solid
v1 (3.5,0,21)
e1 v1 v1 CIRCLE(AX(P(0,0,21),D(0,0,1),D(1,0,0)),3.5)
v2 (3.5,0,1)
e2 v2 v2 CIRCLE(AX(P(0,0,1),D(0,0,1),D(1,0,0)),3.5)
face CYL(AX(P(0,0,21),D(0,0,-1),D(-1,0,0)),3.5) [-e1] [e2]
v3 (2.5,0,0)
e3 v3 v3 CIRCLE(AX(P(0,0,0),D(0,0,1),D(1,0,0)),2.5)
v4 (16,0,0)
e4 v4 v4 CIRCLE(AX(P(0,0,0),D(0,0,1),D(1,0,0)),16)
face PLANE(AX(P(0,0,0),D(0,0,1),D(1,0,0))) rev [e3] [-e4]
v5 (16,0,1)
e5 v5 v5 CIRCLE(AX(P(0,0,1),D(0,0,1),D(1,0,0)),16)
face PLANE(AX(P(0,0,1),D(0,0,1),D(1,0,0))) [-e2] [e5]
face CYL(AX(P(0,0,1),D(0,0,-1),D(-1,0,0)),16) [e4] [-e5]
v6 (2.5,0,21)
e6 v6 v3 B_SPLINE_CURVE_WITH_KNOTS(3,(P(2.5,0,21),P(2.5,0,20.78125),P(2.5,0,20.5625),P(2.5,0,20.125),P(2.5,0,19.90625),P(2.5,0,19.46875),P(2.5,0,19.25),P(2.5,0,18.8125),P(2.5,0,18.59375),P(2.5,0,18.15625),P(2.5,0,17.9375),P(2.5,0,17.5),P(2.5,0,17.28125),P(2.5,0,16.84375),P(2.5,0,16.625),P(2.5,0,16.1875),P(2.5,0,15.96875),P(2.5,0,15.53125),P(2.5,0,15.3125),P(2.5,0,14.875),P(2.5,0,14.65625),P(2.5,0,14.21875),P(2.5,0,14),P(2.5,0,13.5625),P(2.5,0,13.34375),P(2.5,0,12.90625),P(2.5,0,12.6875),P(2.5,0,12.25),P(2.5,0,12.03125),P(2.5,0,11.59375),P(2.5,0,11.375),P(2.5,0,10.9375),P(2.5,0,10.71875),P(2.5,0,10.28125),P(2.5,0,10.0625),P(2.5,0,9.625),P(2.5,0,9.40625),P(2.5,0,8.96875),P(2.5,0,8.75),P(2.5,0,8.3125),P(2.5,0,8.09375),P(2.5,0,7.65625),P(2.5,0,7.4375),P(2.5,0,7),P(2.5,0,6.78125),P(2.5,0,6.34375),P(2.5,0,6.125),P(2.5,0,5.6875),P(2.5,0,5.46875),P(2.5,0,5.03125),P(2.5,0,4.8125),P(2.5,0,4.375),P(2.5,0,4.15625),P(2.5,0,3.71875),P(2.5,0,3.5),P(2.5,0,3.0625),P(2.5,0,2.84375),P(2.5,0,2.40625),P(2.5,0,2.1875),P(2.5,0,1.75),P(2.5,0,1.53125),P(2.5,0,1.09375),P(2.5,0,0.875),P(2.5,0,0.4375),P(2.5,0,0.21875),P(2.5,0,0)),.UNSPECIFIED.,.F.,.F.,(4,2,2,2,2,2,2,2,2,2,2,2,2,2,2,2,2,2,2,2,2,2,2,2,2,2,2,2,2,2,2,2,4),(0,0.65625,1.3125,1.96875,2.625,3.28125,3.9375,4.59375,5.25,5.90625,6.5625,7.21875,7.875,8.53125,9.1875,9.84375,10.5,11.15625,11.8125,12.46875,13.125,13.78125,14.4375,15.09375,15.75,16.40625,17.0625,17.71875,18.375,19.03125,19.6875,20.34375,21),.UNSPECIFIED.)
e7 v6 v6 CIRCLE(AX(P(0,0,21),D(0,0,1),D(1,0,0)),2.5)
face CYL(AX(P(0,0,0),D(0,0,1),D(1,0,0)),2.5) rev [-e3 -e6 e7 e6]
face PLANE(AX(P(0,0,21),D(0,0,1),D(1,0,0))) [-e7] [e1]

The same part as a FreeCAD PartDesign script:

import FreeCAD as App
import Part
import Sketcher

V = App.Vector
Q = App.Units.Quantity

doc = App.newDocument("Part")
body = doc.addObject("PartDesign::Body", "Body")

# Sketch on XY plane
sketch1 = body.newObject("Sketcher::SketchObject", "Sketch")
sketch1.AttachmentSupport = (doc.getObject("XY_Plane"), [""])
sketch1.MapMode = "FlatFace"
sketch1.addGeometry(Part.Circle(V(0, 0, 0), V(0, 0, 1), 16), False)
sketch1.addConstraint([
    Sketcher.Constraint("Coincident", 0, 3, -1, 1),
    Sketcher.Constraint("Diameter", 0, Q("32 mm")),
])
pad1 = body.newObject("PartDesign::Pad", "Pad")
pad1.Profile = sketch1
pad1.Length = 1

# Sketch on XY plane
sketch2 = body.newObject("Sketcher::SketchObject", "Sketch001")
sketch2.AttachmentSupport = (doc.getObject("XY_Plane"), [""])
sketch2.MapMode = "FlatFace"
sketch2.AttachmentOffset = App.Placement(V(0, 0, 1), App.Rotation())
sketch2.addGeometry(Part.Circle(V(0, 0, 0), V(0, 0, 1), 3.5), False)
sketch2.addConstraint([
    Sketcher.Constraint("Coincident", 0, 3, -1, 1),
    Sketcher.Constraint("Diameter", 0, Q("7 mm")),
])
pad2 = body.newObject("PartDesign::Pad", "Pad001")
pad2.Profile = sketch2
pad2.Length = 20

# Sketch on XY plane
sketch3 = body.newObject("Sketcher::SketchObject", "Sketch002")
sketch3.AttachmentSupport = (doc.getObject("XY_Plane"), [""])
sketch3.MapMode = "FlatFace"
sketch3.AttachmentOffset = App.Placement(V(0, 0, 21), App.Rotation())
sketch3.addGeometry(Part.Circle(V(0, 0, 0), V(0, 0, 1), 2.5), False)
sketch3.addConstraint([
    Sketcher.Constraint("Coincident", 0, 3, -1, 1),
    Sketcher.Constraint("Diameter", 0, Q("5 mm")),
])
pocket1 = body.newObject("PartDesign::Pocket", "Pocket")
pocket1.Profile = sketch3
pocket1.Type = "ThroughAll"
pocket1.Midplane = True

doc.recompute()
